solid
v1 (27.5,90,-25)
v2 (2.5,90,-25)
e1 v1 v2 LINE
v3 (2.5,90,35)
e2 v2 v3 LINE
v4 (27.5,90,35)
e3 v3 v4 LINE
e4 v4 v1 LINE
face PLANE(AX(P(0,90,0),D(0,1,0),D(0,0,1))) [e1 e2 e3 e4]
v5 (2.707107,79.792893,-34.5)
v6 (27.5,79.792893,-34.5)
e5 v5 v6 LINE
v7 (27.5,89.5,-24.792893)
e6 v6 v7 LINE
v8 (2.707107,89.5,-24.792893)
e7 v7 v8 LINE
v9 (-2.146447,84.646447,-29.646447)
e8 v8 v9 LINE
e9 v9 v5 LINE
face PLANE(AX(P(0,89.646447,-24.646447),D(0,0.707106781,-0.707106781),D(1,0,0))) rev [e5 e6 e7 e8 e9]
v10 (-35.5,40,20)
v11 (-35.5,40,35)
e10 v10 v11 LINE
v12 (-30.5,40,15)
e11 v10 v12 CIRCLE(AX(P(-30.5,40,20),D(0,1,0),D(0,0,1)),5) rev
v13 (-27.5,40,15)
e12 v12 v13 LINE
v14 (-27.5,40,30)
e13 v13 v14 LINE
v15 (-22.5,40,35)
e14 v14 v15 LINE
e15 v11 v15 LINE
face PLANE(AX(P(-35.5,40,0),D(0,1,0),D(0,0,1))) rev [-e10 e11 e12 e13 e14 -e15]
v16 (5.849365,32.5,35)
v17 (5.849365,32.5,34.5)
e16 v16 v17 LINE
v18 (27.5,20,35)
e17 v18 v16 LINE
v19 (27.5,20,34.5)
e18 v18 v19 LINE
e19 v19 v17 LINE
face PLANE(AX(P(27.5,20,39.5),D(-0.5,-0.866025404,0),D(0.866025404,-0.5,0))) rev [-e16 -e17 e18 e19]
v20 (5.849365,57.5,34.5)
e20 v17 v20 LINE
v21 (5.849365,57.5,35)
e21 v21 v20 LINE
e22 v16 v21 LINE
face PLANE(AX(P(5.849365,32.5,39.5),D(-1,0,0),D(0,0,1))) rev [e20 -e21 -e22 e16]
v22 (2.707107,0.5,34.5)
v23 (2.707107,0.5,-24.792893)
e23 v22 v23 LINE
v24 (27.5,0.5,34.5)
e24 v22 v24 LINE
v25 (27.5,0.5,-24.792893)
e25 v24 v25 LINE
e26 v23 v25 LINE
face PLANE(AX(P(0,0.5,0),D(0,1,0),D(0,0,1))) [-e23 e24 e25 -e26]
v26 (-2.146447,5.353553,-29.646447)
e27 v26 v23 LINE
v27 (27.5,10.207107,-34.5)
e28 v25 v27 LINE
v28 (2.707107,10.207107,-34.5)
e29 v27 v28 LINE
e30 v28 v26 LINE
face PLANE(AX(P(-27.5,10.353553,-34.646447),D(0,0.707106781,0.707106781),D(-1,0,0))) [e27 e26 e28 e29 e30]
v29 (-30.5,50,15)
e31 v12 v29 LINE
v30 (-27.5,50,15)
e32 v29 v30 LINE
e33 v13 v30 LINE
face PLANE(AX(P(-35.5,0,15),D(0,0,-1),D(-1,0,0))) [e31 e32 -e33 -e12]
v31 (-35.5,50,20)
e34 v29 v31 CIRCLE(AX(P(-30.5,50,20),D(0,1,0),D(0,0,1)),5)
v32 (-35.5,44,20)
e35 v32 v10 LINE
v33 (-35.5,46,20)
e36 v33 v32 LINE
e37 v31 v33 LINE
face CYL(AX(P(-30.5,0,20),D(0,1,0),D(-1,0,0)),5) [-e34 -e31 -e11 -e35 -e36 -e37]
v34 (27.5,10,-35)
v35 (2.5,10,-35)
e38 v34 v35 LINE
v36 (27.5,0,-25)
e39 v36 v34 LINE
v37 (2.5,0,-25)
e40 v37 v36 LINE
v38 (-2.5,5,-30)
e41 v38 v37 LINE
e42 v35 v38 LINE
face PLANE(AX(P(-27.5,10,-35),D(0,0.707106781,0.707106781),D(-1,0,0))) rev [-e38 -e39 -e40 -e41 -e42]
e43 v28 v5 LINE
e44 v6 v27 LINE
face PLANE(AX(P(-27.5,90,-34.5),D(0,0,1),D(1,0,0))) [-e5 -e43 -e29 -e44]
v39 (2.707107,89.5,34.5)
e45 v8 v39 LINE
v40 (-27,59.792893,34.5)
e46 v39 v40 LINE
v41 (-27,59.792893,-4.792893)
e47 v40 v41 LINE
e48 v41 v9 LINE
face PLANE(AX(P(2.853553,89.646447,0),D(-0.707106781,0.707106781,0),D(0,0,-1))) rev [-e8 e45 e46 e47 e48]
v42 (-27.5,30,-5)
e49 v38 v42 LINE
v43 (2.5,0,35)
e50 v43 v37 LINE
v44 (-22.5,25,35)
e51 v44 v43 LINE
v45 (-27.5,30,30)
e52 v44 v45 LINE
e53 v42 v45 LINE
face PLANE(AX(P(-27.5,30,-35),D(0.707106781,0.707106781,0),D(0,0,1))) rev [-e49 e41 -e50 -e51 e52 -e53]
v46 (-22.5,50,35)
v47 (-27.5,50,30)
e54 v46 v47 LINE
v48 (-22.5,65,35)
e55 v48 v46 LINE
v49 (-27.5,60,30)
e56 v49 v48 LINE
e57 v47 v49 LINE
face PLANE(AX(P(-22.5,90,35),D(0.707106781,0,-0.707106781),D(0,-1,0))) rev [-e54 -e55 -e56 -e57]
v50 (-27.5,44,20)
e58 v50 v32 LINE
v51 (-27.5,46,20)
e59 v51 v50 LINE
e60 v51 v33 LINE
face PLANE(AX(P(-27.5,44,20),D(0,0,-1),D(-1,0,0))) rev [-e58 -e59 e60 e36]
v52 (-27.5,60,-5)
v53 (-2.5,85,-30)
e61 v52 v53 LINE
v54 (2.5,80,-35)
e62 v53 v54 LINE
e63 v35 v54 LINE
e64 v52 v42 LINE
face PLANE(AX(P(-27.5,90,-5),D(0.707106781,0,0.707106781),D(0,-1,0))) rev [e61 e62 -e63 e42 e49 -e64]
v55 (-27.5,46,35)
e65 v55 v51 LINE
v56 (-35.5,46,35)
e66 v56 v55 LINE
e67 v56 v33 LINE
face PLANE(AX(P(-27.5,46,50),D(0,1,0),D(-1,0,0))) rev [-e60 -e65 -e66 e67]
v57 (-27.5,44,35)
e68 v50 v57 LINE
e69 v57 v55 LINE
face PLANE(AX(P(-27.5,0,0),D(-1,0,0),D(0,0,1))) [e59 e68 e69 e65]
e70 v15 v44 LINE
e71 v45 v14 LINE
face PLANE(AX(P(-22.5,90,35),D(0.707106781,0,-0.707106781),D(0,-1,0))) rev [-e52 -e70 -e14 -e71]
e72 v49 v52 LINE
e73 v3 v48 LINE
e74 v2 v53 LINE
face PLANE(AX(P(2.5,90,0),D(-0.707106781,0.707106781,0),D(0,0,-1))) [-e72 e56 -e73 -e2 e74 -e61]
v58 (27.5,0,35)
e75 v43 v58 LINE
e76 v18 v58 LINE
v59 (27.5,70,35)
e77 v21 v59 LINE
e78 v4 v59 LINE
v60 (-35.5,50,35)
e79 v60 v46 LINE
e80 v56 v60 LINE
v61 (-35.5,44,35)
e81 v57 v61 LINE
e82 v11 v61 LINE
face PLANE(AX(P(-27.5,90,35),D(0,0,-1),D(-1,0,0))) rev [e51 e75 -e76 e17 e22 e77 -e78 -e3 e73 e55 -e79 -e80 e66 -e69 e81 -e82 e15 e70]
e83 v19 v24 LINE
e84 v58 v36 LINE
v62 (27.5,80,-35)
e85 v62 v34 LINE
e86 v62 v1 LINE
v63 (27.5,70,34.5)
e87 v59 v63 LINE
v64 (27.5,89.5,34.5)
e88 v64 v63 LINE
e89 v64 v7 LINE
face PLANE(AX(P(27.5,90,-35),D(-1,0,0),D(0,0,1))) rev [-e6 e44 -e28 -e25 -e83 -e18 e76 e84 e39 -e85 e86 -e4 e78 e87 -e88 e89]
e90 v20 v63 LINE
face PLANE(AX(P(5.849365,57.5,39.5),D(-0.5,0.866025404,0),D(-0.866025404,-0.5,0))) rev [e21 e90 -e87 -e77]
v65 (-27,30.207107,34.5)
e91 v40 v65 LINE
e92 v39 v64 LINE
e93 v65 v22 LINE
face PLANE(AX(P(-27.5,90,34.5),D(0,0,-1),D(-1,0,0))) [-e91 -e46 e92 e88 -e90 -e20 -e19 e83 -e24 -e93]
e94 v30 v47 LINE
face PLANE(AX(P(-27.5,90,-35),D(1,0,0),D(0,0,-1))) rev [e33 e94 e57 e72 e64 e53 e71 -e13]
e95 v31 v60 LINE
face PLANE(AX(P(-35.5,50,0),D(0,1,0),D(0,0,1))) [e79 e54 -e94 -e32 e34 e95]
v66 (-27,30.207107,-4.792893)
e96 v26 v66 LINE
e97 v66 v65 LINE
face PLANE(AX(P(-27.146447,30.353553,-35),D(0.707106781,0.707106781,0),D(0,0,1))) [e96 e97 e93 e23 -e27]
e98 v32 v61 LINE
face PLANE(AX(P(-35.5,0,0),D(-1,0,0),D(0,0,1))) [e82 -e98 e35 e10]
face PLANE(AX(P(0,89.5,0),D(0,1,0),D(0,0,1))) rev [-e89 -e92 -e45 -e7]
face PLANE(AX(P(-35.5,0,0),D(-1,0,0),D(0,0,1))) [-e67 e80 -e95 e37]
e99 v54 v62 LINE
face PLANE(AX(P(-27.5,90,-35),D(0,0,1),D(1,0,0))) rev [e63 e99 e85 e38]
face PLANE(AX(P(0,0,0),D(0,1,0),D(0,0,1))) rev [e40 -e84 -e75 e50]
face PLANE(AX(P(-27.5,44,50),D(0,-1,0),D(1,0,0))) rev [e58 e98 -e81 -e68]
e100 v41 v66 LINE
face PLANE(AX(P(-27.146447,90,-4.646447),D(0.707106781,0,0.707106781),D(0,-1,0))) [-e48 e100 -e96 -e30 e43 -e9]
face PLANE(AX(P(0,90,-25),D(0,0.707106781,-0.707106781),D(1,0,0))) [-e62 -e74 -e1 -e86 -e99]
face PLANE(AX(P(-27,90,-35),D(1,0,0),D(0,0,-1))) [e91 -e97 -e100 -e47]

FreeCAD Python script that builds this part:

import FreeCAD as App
import Part
import Sketcher
Q = App.Units.Quantity


def edges_at(feature, points):
    """Names of the edges that pass closest to the given points."""
    edges = feature.Shape.Edges
    near = lambda p: min(range(len(edges)), key=lambda i: edges[i].distToShape(Part.Vertex(*p))[0])
    return sorted({f"Edge{near(p) + 1}" for p in points})


def faces_at(feature, points):
    """Names of the faces that lie closest to the given points."""
    faces = feature.Shape.Faces
    near = lambda p: min(range(len(faces)), key=lambda i: faces[i].distToShape(Part.Vertex(*p))[0])
    return sorted({f"Face{near(p) + 1}" for p in points})


def add_polygon(sketch, points):
    """Adds a closed chain of lines whose ends are joined by coincident constraints."""
    first, n = sketch.GeometryCount, len(points)
    for a, b in zip(points, points[1:] + points[:1]):
        sketch.addGeometry(Part.LineSegment(App.Vector(*a, 0), App.Vector(*b, 0)), False)
    for i in range(n):
        sketch.addConstraint(Sketcher.Constraint("Coincident", first + i, 2, first + (i + 1) % n, 1))

doc = App.newDocument("Part")
body = doc.addObject("PartDesign::Body", "Body")

sketch1 = body.newObject("Sketcher::SketchObject", "Sketch")
sketch1.AttachmentSupport = (doc.getObject("XZ_Plane"), [""])
sketch1.MapMode = "FlatFace"
add_polygon(sketch1, [(-27.5, -35), (-27.5, 35), (27.5, 35), (27.5, -35)])
sketch1.addConstraint([
    Sketcher.Constraint("Vertical", 0),
    Sketcher.Constraint("Horizontal", 1),
    Sketcher.Constraint("Vertical", 2),
    Sketcher.Constraint("Horizontal", 3),
    Sketcher.Constraint("Symmetric", 0, 2, 2, 2, -1, 1),
    Sketcher.Constraint("DistanceX", 1, 1, 1, 2, Q("55 mm")),
    Sketcher.Constraint("DistanceY", 0, 1, 0, 2, Q("70 mm")),
])
pad1 = body.newObject("PartDesign::Pad", "Pad")
pad1.Profile = sketch1
pad1.Length = 90
pad1.Reversed = True
doc.recompute()

chamfer = body.newObject("PartDesign::Chamfer", "Chamfer")
chamfer.Base = (pad1, edges_at(pad1, [(-27.5, 45, -35)]))
chamfer.Size = 30
doc.recompute()

chamfer2 = body.newObject("PartDesign::Chamfer", "Chamfer001")
chamfer2.Base = (chamfer, edges_at(chamfer, [(-27.5, 0, 15), (-27.5, 90, 15)]))
chamfer2.Size = 30
doc.recompute()

chamfer3 = body.newObject("PartDesign::Chamfer", "Chamfer002")
chamfer3.Base = (chamfer2, edges_at(chamfer2, [(15, 0, -35), (15, 90, -35)]))
chamfer3.Size = 10
doc.recompute()

thickness = body.newObject("PartDesign::Thickness", "Thickness")
thickness.Base = (chamfer3, faces_at(chamfer3, [(27.5, 45, 0)]))
thickness.Value = 0.5
thickness.Reversed = True
thickness.Join = "Intersection"

sketch2 = body.newObject("Sketcher::SketchObject", "Sketch001")
sketch2.AttachmentSupport = (doc.getObject("YZ_Plane"), [""])
sketch2.MapMode = "FlatFace"
sketch2.AttachmentOffset = App.Placement(App.Vector(0, 0, -27.5), App.Rotation())
add_polygon(sketch2, [(50, 15), (40, 15), (40, 35), (50, 35)])
sketch2.addConstraint([
    Sketcher.Constraint("Horizontal", 0),
    Sketcher.Constraint("Vertical", 1),
    Sketcher.Constraint("Horizontal", 2),
    Sketcher.Constraint("Vertical", 3),
    Sketcher.Constraint("DistanceX", 0, 2, 0, 1, Q("10 mm")),
    Sketcher.Constraint("DistanceY", 1, 1, 1, 2, Q("20 mm")),
    Sketcher.Constraint("DistanceX", -1, 1, 0, 2, Q("40 mm")),
    Sketcher.Constraint("DistanceY", -1, 1, 0, 2, Q("15 mm")),
])
pad2 = body.newObject("PartDesign::Pad", "Pad001")
pad2.Profile = sketch2
pad2.Length = 8
pad2.Reversed = True
doc.recompute()

fillet = body.newObject("PartDesign::Fillet", "Fillet")
fillet.Base = (pad2, edges_at(pad2, [(-35.5, 45, 15)]))
fillet.Radius = 5

sketch3 = body.newObject("Sketcher::SketchObject", "Sketch002")
sketch3.AttachmentSupport = (doc.getObject("YZ_Plane"), [""])
sketch3.MapMode = "FlatFace"
sketch3.AttachmentOffset = App.Placement(App.Vector(0, 0, -35.5), App.Rotation())
add_polygon(sketch3, [(46, 20), (44, 20), (44, 50), (46, 50)])
sketch3.addConstraint([
    Sketcher.Constraint("Horizontal", 0),
    Sketcher.Constraint("Vertical", 1),
    Sketcher.Constraint("Horizontal", 2),
    Sketcher.Constraint("Vertical", 3),
    Sketcher.Constraint("DistanceX", 0, 2, 0, 1, Q("2 mm")),
    Sketcher.Constraint("DistanceY", 1, 1, 1, 2, Q("30 mm")),
    Sketcher.Constraint("DistanceX", -1, 1, 0, 2, Q("44 mm")),
    Sketcher.Constraint("DistanceY", -1, 1, 0, 2, Q("20 mm")),
])
pocket1 = body.newObject("PartDesign::Pocket", "Pocket")
pocket1.Profile = sketch3
pocket1.Length = 8
pocket1.Reversed = True
doc.recompute()

chamfer4 = body.newObject("PartDesign::Chamfer", "Chamfer003")
chamfer4.Base = (pocket1, edges_at(pocket1, [(-27.5, 55, 35), (-27.5, 35, 35)]))
chamfer4.Size = 5

sketch4 = body.newObject("Sketcher::SketchObject", "Sketch003")
sketch4.AttachmentSupport = (doc.getObject("XY_Plane"), [""])
sketch4.MapMode = "FlatFace"
sketch4.AttachmentOffset = App.Placement(App.Vector(0, 0, 34.5), App.Rotation())
add_polygon(sketch4, [(27.5, 70), (49.150635, 57.5), (49.150635, 32.5), (27.5, 20), (5.849365, 32.5), (5.849365, 57.5)])
sketch4.addConstraint([
    Sketcher.Constraint("Vertical", 1),
    Sketcher.Constraint("Vertical", 4),
    Sketcher.Constraint("Parallel", 0, 3),
    Sketcher.Constraint("Parallel", 2, 5),
    Sketcher.Constraint("Horizontal", 1, 2, 3, 2),
    Sketcher.Constraint("Horizontal", 0, 2, 4, 2),
    Sketcher.Constraint("Vertical", 2, 2, 5, 2),
    Sketcher.Constraint("DistanceY", 1, 2, 1, 1, Q("25 mm")),
    Sketcher.Constraint("Angle", 0, Q("-30 deg")),
    Sketcher.Constraint("Distance", 0, Q("25 mm")),
    Sketcher.Constraint("DistanceY", -1, 1, 2, 2, Q("20 mm")),
    Sketcher.Constraint("DistanceX", -1, 1, 2, 2, Q("27.5 mm")),
])
pocket2 = body.newObject("PartDesign::Pocket", "Pocket001")
pocket2.Profile = sketch4
pocket2.Length = 10
pocket2.Midplane = True

doc.recompute()
